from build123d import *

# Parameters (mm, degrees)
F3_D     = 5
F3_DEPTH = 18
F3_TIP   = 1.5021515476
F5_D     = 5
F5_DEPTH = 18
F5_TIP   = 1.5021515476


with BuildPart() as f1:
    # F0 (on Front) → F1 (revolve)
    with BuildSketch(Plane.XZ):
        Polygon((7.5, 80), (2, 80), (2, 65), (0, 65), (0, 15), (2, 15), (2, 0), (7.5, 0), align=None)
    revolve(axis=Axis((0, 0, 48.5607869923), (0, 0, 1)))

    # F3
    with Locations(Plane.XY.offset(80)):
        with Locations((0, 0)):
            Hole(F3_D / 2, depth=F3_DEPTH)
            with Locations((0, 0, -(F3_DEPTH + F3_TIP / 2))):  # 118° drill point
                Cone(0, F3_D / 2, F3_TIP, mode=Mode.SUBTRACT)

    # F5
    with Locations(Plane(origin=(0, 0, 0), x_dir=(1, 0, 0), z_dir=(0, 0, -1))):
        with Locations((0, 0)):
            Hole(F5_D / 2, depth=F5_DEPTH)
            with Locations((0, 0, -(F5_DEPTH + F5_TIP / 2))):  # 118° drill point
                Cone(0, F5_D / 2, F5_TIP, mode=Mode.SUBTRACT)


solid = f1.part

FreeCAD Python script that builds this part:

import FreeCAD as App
import Part
import Sketcher
Q = App.Units.Quantity


def add_polygon(sketch, points):
    """Adds a closed chain of lines whose ends are joined by coincident constraints."""
    first, n = sketch.GeometryCount, len(points)
    for a, b in zip(points, points[1:] + points[:1]):
        sketch.addGeometry(Part.LineSegment(App.Vector(*a, 0), App.Vector(*b, 0)), False)
    for i in range(n):
        sketch.addConstraint(Sketcher.Constraint("Coincident", first + i, 2, first + (i + 1) % n, 1))

doc = App.newDocument("Part")
params = doc.addObject("Spreadsheet::Sheet", "Params")
for row, (alias, value) in enumerate([
    ("sketch1_width", "2 mm"),
    ("sketch1_height", "15 mm"),
    ("sketch1_height2", "50 mm"),
    ("sketch1_width2", "5.5 mm"),
    ("revolution_angle", "360 deg"),
    ("sketch2_diameter", "5 mm"),
    ("hole_diameter", "5 mm"),
    ("hole_depth", "18 mm"),
    ("sketch3_diameter", "5 mm"),
    ("hole2_diameter", "5 mm"),
    ("hole2_depth", "18 mm"),
], start=1):
    params.set(f"A{row}", alias)
    params.set(f"B{row}", "=" + value)
    params.setAlias(f"B{row}", alias)

body = doc.addObject("PartDesign::Body", "Body")

# Sketch on XZ plane
sketch1 = body.newObject("Sketcher::SketchObject", "Sketch")
sketch1.AttachmentSupport = (doc.getObject("XZ_Plane"), [""])
sketch1.MapMode = "FlatFace"
add_polygon(sketch1, [(7.5, 80), (2, 80), (2, 65), (0, 65), (0, 15), (2, 15), (2, 0), (7.5, 0)])  # lines 0-7
sketch1.addConstraint([
    Sketcher.Constraint("Horizontal", 0),
    Sketcher.Constraint("Vertical", 1),
    Sketcher.Constraint("Horizontal", 2),
    Sketcher.Constraint("Vertical", 3),
    Sketcher.Constraint("Horizontal", 4),
    Sketcher.Constraint("Vertical", 5),
    Sketcher.Constraint("Horizontal", 6),
    Sketcher.Constraint("Vertical", 7),
    Sketcher.Constraint("PointOnObject", 2, 2, -2),
    Sketcher.Constraint("PointOnObject", 5, 2, -1),
    Sketcher.Constraint("Vertical", 1, 2, 4, 2),
    Sketcher.Constraint("Equal", 1, 5),
    Sketcher.Constraint("DistanceX", 2, 2, 2, 1, Q("2 mm")),
    Sketcher.Constraint("DistanceY", 1, 2, 1, 1, Q("15 mm")),
    Sketcher.Constraint("DistanceY", 3, 2, 3, 1, Q("50 mm")),
    Sketcher.Constraint("DistanceX", 0, 2, 0, 1, Q("5.5 mm")),
])
sketch1.setExpression("Constraints[20]", "Params.sketch1_width")
sketch1.setExpression("Constraints[21]", "Params.sketch1_height")
sketch1.setExpression("Constraints[22]", "Params.sketch1_height2")
sketch1.setExpression("Constraints[23]", "Params.sketch1_width2")
revolution = body.newObject("PartDesign::Revolution", "Revolution")
revolution.Profile = sketch1
revolution.ReferenceAxis = (sketch1, ["V_Axis"])
revolution.setExpression("Angle", "Params.revolution_angle")

# Sketch on XY plane
sketch2 = body.newObject("Sketcher::SketchObject", "Sketch001")
sketch2.AttachmentSupport = (doc.getObject("XY_Plane"), [""])
sketch2.MapMode = "FlatFace"
sketch2.AttachmentOffset = App.Placement(App.Vector(0, 0, 80), App.Rotation())
sketch2.addGeometry(Part.Circle(App.Vector(0, 0, 0), App.Vector(0, 0, 1), 2.5), False)
sketch2.addConstraint([
    Sketcher.Constraint("Coincident", 0, 3, -1, 1),
    Sketcher.Constraint("Diameter", 0, Q("5 mm")),
])
sketch2.setExpression("Constraints[1]", "Params.sketch2_diameter")
doc.recompute()
hole = body.newObject("PartDesign::Hole", "Hole")
hole.Profile = sketch2
hole.ThreadType = "None"
hole.setExpression("Diameter", "Params.hole_diameter")
hole.DepthType = "Dimension"
hole.setExpression("Depth", "Params.hole_depth")
hole.DrillPoint = "Angled"
hole.DrillPointAngle = 118

# Sketch on XY plane
sketch3 = body.newObject("Sketcher::SketchObject", "Sketch002")
sketch3.AttachmentSupport = (doc.getObject("XY_Plane"), [""])
sketch3.MapMode = "FlatFace"
sketch3.addGeometry(Part.Circle(App.Vector(0, 0, 0), App.Vector(0, 0, 1), 2.5), False)
sketch3.addConstraint([
    Sketcher.Constraint("Coincident", 0, 3, -1, 1),
    Sketcher.Constraint("Diameter", 0, Q("5 mm")),
])
sketch3.setExpression("Constraints[1]", "Params.sketch3_diameter")
doc.recompute()
hole2 = body.newObject("PartDesign::Hole", "Hole001")
hole2.Profile = sketch3
hole2.ThreadType = "None"
hole2.setExpression("Diameter", "Params.hole2_diameter")
hole2.DepthType = "Dimension"
hole2.setExpression("Depth", "Params.hole2_depth")
hole2.DrillPoint = "Angled"
hole2.DrillPointAngle = 118
hole2.Reversed = True

doc.recompute()
